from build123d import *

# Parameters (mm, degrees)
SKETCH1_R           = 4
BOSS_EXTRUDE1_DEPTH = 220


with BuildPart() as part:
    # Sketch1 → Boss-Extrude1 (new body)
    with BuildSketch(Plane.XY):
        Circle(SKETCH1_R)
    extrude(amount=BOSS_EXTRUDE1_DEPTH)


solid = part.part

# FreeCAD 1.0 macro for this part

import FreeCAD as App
import Part
import Sketcher
Q = App.Units.Quantity

doc = App.newDocument("Part")
body = doc.addObject("PartDesign::Body", "Body")

# Sketch on XY plane
sketch1 = body.newObject("Sketcher::SketchObject", "Sketch")
sketch1.AttachmentSupport = (doc.getObject("XY_Plane"), [""])
sketch1.MapMode = "FlatFace"
sketch1.addGeometry(Part.Circle(App.Vector(0, 0, 0), App.Vector(0, 0, 1), 4), False)
sketch1.addConstraint(Sketcher.Constraint("Coincident", 0, 3, -1, 1))
sketch1.addConstraint(Sketcher.Constraint("Diameter", 0, Q("8 mm")))
pad1 = body.newObject("PartDesign::Pad", "Pad")
pad1.Profile = sketch1
pad1.Length = 220

doc.recompute()
